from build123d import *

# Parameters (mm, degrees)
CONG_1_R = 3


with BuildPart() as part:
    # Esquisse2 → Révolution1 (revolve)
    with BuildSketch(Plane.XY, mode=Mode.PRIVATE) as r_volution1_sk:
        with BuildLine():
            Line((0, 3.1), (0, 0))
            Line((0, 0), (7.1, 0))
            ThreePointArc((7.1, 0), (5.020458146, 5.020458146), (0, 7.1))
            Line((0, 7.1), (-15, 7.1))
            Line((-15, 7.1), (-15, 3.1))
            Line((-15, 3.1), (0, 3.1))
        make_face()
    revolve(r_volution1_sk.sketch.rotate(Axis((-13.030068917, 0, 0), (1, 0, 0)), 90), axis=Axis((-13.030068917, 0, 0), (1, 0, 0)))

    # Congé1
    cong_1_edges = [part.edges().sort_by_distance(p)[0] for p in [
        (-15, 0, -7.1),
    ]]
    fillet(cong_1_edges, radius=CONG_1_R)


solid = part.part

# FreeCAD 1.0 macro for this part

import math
import FreeCAD as App
import Part
import Sketcher

V = App.Vector


def edges_at(feature, points):
    """Names of the edges that pass closest to the given points."""
    edges = feature.Shape.Edges
    near = lambda p: min(range(len(edges)), key=lambda i: edges[i].distToShape(Part.Vertex(*p))[0])
    return sorted({f"Edge{near(p) + 1}" for p in points})

doc = App.newDocument("Part")
body = doc.addObject("PartDesign::Body", "Body")

sketch1 = body.newObject("Sketcher::SketchObject", "Sketch")
sketch1.AttachmentSupport = (doc.getObject("XY_Plane"), [""])
sketch1.MapMode = "FlatFace"
sketch1.addGeometry([
    Part.LineSegment(V(0, 3.1, 0), V(0, 0, 0)),
    Part.LineSegment(V(0, 0, 0), V(7.1, 0, 0)),
    Part.ArcOfCircle(Part.Circle(V(0, 0, 0), V(0, 0, 1), 7.1), math.radians(0), math.radians(90)),
    Part.LineSegment(V(0, 7.1, 0), V(-15, 7.1, 0)),
    Part.LineSegment(V(-15, 7.1, 0), V(-15, 3.1, 0)),
    Part.LineSegment(V(-15, 3.1, 0), V(0, 3.1, 0)),
], False)
sketch1.addConstraint([
    Sketcher.Constraint("Coincident", 0, 2, 1, 1),
    Sketcher.Constraint("Coincident", 1, 2, 2, 1),
    Sketcher.Constraint("Tangent", 2, 2, 3, 1),
    Sketcher.Constraint("Coincident", 3, 2, 4, 1),
    Sketcher.Constraint("Coincident", 4, 2, 5, 1),
    Sketcher.Constraint("Coincident", 5, 2, 0, 1),
    Sketcher.Constraint("Vertical", 0),
    Sketcher.Constraint("Horizontal", 1),
    Sketcher.Constraint("Horizontal", 3),
    Sketcher.Constraint("Vertical", 4),
    Sketcher.Constraint("Horizontal", 5),
    Sketcher.Constraint("Coincident", 2, 3, -1, 1),
    Sketcher.Constraint("Coincident", 0, 2, -1, 1),
    Sketcher.Constraint("Radius", 2, 7.1),
    Sketcher.Constraint("DistanceX", 3, 2, 3, 1, 15.0),
    Sketcher.Constraint("DistanceY", 4, 2, 4, 1, 4.0),
])
revolution = body.newObject("PartDesign::Revolution", "Revolution")
revolution.Profile = sketch1
revolution.ReferenceAxis = (sketch1, ["H_Axis"])
revolution.Angle = 360
doc.recompute()

fillet = body.newObject("PartDesign::Fillet", "Fillet")
fillet.Base = (revolution, edges_at(revolution, [(-15, 0, -7.1)]))
fillet.Radius = 3

doc.recompute()
